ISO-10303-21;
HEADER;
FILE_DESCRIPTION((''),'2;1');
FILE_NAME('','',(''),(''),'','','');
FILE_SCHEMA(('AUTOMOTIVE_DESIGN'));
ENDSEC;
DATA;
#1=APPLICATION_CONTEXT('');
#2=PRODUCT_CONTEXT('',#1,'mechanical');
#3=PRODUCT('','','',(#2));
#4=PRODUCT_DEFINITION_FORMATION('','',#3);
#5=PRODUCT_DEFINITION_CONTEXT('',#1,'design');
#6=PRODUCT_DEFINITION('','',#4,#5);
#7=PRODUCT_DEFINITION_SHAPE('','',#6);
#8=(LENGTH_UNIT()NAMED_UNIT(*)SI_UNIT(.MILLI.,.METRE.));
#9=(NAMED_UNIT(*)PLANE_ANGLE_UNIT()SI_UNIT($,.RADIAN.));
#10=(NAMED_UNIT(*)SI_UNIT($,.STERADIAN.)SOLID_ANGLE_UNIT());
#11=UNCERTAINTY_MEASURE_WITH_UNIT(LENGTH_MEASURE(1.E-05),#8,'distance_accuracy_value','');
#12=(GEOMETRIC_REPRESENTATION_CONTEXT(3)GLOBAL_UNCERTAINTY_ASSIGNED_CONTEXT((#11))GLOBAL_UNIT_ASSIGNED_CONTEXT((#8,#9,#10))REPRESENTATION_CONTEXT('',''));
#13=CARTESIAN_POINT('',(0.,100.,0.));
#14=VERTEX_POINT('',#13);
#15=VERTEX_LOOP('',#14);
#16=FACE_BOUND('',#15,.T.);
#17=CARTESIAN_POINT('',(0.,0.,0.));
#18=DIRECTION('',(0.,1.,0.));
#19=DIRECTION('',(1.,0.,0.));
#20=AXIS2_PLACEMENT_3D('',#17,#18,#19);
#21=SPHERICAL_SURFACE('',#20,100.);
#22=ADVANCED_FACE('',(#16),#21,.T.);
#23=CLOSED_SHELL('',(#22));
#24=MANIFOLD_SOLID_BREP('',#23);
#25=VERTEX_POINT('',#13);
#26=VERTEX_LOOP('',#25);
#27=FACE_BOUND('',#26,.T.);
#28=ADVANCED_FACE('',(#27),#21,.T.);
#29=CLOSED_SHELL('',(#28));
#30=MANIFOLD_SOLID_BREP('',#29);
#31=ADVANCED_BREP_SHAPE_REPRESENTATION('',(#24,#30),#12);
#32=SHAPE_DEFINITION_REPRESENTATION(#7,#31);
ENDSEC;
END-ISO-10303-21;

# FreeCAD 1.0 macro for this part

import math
import FreeCAD as App
import Part
import Sketcher

V = App.Vector

doc = App.newDocument("Part")
params = doc.addObject("Spreadsheet::Sheet", "Params")
for row, (alias, value) in enumerate([
    ("sketch1_radius", "100 mm"),
    ("revolution_angle", "360 deg"),
    ("sketch2_radius", "100 mm"),
    ("revolution2_angle", "360 deg"),
], start=1):
    params.set(f"A{row}", alias)
    params.set(f"B{row}", "=" + value)
    params.setAlias(f"B{row}", alias)

body = doc.addObject("PartDesign::Body", "Body")

sketch1 = body.newObject("Sketcher::SketchObject", "Sketch")
sketch1.AttachmentSupport = (doc.getObject("XY_Plane"), [""])
sketch1.MapMode = "FlatFace"
sketch1.addGeometry([
    Part.LineSegment(V(0, 100, 0), V(0, -100, 0)),
    Part.ArcOfCircle(Part.Circle(V(0, 0, 0), V(0, 0, 1), 100), math.radians(-90), math.radians(90)),
], False)
sketch1.addConstraint([
    Sketcher.Constraint("Coincident", 0, 1, 1, 2),
    Sketcher.Constraint("Coincident", 1, 1, 0, 2),
    Sketcher.Constraint("Vertical", 0),
    Sketcher.Constraint("Coincident", 1, 3, -1, 1),
    Sketcher.Constraint("PointOnObject", 0, 1, -2),
    Sketcher.Constraint("Radius", 1, 100.0),
])
sketch1.setExpression("Constraints[5]", "Params.sketch1_radius")
revolution = body.newObject("PartDesign::Revolution", "Revolution")
revolution.Profile = sketch1
revolution.ReferenceAxis = (sketch1, ["V_Axis"])
revolution.setExpression("Angle", "Params.revolution_angle")
body2 = doc.addObject("PartDesign::Body", "Body001")

sketch2 = body2.newObject("Sketcher::SketchObject", "Sketch001")
sketch2.AttachmentSupport = (doc.getObject("XY_Plane001"), [""])
sketch2.MapMode = "FlatFace"
sketch2.addGeometry([
    Part.LineSegment(V(0, 100, 0), V(0, -100, 0)),
    Part.ArcOfCircle(Part.Circle(V(0, 0, 0), V(0, 0, 1), 100), math.radians(-90), math.radians(90)),
], False)
sketch2.addConstraint([
    Sketcher.Constraint("Coincident", 0, 1, 1, 2),
    Sketcher.Constraint("Coincident", 1, 1, 0, 2),
    Sketcher.Constraint("Vertical", 0),
    Sketcher.Constraint("Coincident", 1, 3, -1, 1),
    Sketcher.Constraint("PointOnObject", 0, 1, -2),
    Sketcher.Constraint("Radius", 1, 100.0),
])
sketch2.setExpression("Constraints[5]", "Params.sketch2_radius")
revolution2 = body2.newObject("PartDesign::Revolution", "Revolution001")
revolution2.Profile = sketch2
revolution2.ReferenceAxis = (sketch2, ["V_Axis"])
revolution2.setExpression("Angle", "Params.revolution2_angle")

doc.recompute()
